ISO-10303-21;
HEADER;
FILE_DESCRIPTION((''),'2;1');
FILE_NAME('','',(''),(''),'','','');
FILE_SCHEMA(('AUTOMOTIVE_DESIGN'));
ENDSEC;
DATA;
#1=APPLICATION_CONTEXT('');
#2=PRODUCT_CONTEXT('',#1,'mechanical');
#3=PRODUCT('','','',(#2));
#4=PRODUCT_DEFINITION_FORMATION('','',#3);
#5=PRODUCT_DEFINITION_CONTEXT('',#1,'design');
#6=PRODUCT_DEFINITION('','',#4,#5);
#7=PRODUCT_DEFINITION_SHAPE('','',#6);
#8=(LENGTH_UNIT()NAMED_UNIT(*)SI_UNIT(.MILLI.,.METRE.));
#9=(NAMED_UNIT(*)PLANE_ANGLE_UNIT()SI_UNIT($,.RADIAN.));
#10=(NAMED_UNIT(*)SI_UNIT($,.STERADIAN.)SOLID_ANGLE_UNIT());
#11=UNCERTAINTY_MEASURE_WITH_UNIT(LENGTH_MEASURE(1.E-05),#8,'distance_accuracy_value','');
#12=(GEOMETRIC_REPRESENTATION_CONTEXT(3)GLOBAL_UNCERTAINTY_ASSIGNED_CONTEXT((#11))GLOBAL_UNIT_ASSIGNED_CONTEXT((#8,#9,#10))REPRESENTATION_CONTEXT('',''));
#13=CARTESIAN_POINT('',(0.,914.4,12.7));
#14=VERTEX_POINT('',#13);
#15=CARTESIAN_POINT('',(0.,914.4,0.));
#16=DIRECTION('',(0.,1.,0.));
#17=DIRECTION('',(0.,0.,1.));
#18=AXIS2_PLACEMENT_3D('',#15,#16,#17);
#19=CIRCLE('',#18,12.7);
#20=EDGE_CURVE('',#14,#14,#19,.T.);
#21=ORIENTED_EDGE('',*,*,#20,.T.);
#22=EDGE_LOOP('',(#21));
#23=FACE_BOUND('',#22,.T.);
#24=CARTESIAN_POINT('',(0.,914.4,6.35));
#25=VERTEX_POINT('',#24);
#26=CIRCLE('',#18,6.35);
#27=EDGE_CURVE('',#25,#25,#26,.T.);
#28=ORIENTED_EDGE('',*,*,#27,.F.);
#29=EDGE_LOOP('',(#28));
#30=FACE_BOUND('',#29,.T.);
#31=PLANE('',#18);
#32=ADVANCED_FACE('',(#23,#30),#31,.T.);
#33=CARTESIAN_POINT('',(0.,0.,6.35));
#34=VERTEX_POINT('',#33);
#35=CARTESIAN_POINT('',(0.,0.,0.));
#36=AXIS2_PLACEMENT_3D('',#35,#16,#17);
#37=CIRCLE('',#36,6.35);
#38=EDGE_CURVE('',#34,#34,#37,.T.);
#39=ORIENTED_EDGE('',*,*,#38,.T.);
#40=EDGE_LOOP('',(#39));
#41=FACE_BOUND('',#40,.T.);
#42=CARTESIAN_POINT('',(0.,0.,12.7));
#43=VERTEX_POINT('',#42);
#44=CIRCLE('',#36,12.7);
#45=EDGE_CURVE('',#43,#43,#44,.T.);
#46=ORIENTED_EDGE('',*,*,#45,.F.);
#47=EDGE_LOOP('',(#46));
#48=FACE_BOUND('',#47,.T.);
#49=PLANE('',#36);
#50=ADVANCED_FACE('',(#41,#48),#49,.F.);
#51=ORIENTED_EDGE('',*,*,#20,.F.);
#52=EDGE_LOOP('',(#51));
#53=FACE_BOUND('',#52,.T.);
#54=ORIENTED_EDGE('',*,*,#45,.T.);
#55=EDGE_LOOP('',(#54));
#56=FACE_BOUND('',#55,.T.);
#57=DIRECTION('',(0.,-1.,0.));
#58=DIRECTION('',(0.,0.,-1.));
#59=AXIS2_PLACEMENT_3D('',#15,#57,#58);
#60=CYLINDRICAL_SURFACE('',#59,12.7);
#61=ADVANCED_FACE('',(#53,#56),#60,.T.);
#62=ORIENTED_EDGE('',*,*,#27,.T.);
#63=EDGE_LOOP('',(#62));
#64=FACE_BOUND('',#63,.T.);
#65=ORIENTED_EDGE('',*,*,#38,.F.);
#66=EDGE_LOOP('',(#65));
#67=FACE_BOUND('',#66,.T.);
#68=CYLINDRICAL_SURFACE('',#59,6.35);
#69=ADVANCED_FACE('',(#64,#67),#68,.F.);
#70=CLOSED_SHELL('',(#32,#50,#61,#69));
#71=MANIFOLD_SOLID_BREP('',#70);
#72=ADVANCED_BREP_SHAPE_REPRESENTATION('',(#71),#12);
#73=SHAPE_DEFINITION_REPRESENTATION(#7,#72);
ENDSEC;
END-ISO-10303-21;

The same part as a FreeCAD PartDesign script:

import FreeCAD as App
import Part
import Sketcher
from FreeCAD import Vector
Q = App.Units.Quantity

doc = App.newDocument("Part")
body = doc.addObject("PartDesign::Body", "Body")

sketch1 = body.newObject("Sketcher::SketchObject", "Sketch")
sketch1.AttachmentSupport = (doc.getObject("XZ_Plane"), [""])
sketch1.MapMode = "FlatFace"
sketch1.addGeometry([
    Part.Circle(Vector(0, 0, 0), Vector(0, 0, 1), 13),
    Part.Circle(Vector(0, 0, 0), Vector(0, 0, 1), 6),
], False)
sketch1.addConstraint([
    Sketcher.Constraint("Coincident", 0, 3, -1, 1),
    Sketcher.Constraint("Coincident", 1, 3, -1, 1),
    Sketcher.Constraint("Diameter", 0, Q("1 in")),
    Sketcher.Constraint("Diameter", 1, Q("0.5 in")),
])
pad1 = body.newObject("PartDesign::Pad", "Pad")
pad1.Profile = sketch1
pad1.Length = Q("36 in")
pad1.Reversed = True

doc.recompute()
